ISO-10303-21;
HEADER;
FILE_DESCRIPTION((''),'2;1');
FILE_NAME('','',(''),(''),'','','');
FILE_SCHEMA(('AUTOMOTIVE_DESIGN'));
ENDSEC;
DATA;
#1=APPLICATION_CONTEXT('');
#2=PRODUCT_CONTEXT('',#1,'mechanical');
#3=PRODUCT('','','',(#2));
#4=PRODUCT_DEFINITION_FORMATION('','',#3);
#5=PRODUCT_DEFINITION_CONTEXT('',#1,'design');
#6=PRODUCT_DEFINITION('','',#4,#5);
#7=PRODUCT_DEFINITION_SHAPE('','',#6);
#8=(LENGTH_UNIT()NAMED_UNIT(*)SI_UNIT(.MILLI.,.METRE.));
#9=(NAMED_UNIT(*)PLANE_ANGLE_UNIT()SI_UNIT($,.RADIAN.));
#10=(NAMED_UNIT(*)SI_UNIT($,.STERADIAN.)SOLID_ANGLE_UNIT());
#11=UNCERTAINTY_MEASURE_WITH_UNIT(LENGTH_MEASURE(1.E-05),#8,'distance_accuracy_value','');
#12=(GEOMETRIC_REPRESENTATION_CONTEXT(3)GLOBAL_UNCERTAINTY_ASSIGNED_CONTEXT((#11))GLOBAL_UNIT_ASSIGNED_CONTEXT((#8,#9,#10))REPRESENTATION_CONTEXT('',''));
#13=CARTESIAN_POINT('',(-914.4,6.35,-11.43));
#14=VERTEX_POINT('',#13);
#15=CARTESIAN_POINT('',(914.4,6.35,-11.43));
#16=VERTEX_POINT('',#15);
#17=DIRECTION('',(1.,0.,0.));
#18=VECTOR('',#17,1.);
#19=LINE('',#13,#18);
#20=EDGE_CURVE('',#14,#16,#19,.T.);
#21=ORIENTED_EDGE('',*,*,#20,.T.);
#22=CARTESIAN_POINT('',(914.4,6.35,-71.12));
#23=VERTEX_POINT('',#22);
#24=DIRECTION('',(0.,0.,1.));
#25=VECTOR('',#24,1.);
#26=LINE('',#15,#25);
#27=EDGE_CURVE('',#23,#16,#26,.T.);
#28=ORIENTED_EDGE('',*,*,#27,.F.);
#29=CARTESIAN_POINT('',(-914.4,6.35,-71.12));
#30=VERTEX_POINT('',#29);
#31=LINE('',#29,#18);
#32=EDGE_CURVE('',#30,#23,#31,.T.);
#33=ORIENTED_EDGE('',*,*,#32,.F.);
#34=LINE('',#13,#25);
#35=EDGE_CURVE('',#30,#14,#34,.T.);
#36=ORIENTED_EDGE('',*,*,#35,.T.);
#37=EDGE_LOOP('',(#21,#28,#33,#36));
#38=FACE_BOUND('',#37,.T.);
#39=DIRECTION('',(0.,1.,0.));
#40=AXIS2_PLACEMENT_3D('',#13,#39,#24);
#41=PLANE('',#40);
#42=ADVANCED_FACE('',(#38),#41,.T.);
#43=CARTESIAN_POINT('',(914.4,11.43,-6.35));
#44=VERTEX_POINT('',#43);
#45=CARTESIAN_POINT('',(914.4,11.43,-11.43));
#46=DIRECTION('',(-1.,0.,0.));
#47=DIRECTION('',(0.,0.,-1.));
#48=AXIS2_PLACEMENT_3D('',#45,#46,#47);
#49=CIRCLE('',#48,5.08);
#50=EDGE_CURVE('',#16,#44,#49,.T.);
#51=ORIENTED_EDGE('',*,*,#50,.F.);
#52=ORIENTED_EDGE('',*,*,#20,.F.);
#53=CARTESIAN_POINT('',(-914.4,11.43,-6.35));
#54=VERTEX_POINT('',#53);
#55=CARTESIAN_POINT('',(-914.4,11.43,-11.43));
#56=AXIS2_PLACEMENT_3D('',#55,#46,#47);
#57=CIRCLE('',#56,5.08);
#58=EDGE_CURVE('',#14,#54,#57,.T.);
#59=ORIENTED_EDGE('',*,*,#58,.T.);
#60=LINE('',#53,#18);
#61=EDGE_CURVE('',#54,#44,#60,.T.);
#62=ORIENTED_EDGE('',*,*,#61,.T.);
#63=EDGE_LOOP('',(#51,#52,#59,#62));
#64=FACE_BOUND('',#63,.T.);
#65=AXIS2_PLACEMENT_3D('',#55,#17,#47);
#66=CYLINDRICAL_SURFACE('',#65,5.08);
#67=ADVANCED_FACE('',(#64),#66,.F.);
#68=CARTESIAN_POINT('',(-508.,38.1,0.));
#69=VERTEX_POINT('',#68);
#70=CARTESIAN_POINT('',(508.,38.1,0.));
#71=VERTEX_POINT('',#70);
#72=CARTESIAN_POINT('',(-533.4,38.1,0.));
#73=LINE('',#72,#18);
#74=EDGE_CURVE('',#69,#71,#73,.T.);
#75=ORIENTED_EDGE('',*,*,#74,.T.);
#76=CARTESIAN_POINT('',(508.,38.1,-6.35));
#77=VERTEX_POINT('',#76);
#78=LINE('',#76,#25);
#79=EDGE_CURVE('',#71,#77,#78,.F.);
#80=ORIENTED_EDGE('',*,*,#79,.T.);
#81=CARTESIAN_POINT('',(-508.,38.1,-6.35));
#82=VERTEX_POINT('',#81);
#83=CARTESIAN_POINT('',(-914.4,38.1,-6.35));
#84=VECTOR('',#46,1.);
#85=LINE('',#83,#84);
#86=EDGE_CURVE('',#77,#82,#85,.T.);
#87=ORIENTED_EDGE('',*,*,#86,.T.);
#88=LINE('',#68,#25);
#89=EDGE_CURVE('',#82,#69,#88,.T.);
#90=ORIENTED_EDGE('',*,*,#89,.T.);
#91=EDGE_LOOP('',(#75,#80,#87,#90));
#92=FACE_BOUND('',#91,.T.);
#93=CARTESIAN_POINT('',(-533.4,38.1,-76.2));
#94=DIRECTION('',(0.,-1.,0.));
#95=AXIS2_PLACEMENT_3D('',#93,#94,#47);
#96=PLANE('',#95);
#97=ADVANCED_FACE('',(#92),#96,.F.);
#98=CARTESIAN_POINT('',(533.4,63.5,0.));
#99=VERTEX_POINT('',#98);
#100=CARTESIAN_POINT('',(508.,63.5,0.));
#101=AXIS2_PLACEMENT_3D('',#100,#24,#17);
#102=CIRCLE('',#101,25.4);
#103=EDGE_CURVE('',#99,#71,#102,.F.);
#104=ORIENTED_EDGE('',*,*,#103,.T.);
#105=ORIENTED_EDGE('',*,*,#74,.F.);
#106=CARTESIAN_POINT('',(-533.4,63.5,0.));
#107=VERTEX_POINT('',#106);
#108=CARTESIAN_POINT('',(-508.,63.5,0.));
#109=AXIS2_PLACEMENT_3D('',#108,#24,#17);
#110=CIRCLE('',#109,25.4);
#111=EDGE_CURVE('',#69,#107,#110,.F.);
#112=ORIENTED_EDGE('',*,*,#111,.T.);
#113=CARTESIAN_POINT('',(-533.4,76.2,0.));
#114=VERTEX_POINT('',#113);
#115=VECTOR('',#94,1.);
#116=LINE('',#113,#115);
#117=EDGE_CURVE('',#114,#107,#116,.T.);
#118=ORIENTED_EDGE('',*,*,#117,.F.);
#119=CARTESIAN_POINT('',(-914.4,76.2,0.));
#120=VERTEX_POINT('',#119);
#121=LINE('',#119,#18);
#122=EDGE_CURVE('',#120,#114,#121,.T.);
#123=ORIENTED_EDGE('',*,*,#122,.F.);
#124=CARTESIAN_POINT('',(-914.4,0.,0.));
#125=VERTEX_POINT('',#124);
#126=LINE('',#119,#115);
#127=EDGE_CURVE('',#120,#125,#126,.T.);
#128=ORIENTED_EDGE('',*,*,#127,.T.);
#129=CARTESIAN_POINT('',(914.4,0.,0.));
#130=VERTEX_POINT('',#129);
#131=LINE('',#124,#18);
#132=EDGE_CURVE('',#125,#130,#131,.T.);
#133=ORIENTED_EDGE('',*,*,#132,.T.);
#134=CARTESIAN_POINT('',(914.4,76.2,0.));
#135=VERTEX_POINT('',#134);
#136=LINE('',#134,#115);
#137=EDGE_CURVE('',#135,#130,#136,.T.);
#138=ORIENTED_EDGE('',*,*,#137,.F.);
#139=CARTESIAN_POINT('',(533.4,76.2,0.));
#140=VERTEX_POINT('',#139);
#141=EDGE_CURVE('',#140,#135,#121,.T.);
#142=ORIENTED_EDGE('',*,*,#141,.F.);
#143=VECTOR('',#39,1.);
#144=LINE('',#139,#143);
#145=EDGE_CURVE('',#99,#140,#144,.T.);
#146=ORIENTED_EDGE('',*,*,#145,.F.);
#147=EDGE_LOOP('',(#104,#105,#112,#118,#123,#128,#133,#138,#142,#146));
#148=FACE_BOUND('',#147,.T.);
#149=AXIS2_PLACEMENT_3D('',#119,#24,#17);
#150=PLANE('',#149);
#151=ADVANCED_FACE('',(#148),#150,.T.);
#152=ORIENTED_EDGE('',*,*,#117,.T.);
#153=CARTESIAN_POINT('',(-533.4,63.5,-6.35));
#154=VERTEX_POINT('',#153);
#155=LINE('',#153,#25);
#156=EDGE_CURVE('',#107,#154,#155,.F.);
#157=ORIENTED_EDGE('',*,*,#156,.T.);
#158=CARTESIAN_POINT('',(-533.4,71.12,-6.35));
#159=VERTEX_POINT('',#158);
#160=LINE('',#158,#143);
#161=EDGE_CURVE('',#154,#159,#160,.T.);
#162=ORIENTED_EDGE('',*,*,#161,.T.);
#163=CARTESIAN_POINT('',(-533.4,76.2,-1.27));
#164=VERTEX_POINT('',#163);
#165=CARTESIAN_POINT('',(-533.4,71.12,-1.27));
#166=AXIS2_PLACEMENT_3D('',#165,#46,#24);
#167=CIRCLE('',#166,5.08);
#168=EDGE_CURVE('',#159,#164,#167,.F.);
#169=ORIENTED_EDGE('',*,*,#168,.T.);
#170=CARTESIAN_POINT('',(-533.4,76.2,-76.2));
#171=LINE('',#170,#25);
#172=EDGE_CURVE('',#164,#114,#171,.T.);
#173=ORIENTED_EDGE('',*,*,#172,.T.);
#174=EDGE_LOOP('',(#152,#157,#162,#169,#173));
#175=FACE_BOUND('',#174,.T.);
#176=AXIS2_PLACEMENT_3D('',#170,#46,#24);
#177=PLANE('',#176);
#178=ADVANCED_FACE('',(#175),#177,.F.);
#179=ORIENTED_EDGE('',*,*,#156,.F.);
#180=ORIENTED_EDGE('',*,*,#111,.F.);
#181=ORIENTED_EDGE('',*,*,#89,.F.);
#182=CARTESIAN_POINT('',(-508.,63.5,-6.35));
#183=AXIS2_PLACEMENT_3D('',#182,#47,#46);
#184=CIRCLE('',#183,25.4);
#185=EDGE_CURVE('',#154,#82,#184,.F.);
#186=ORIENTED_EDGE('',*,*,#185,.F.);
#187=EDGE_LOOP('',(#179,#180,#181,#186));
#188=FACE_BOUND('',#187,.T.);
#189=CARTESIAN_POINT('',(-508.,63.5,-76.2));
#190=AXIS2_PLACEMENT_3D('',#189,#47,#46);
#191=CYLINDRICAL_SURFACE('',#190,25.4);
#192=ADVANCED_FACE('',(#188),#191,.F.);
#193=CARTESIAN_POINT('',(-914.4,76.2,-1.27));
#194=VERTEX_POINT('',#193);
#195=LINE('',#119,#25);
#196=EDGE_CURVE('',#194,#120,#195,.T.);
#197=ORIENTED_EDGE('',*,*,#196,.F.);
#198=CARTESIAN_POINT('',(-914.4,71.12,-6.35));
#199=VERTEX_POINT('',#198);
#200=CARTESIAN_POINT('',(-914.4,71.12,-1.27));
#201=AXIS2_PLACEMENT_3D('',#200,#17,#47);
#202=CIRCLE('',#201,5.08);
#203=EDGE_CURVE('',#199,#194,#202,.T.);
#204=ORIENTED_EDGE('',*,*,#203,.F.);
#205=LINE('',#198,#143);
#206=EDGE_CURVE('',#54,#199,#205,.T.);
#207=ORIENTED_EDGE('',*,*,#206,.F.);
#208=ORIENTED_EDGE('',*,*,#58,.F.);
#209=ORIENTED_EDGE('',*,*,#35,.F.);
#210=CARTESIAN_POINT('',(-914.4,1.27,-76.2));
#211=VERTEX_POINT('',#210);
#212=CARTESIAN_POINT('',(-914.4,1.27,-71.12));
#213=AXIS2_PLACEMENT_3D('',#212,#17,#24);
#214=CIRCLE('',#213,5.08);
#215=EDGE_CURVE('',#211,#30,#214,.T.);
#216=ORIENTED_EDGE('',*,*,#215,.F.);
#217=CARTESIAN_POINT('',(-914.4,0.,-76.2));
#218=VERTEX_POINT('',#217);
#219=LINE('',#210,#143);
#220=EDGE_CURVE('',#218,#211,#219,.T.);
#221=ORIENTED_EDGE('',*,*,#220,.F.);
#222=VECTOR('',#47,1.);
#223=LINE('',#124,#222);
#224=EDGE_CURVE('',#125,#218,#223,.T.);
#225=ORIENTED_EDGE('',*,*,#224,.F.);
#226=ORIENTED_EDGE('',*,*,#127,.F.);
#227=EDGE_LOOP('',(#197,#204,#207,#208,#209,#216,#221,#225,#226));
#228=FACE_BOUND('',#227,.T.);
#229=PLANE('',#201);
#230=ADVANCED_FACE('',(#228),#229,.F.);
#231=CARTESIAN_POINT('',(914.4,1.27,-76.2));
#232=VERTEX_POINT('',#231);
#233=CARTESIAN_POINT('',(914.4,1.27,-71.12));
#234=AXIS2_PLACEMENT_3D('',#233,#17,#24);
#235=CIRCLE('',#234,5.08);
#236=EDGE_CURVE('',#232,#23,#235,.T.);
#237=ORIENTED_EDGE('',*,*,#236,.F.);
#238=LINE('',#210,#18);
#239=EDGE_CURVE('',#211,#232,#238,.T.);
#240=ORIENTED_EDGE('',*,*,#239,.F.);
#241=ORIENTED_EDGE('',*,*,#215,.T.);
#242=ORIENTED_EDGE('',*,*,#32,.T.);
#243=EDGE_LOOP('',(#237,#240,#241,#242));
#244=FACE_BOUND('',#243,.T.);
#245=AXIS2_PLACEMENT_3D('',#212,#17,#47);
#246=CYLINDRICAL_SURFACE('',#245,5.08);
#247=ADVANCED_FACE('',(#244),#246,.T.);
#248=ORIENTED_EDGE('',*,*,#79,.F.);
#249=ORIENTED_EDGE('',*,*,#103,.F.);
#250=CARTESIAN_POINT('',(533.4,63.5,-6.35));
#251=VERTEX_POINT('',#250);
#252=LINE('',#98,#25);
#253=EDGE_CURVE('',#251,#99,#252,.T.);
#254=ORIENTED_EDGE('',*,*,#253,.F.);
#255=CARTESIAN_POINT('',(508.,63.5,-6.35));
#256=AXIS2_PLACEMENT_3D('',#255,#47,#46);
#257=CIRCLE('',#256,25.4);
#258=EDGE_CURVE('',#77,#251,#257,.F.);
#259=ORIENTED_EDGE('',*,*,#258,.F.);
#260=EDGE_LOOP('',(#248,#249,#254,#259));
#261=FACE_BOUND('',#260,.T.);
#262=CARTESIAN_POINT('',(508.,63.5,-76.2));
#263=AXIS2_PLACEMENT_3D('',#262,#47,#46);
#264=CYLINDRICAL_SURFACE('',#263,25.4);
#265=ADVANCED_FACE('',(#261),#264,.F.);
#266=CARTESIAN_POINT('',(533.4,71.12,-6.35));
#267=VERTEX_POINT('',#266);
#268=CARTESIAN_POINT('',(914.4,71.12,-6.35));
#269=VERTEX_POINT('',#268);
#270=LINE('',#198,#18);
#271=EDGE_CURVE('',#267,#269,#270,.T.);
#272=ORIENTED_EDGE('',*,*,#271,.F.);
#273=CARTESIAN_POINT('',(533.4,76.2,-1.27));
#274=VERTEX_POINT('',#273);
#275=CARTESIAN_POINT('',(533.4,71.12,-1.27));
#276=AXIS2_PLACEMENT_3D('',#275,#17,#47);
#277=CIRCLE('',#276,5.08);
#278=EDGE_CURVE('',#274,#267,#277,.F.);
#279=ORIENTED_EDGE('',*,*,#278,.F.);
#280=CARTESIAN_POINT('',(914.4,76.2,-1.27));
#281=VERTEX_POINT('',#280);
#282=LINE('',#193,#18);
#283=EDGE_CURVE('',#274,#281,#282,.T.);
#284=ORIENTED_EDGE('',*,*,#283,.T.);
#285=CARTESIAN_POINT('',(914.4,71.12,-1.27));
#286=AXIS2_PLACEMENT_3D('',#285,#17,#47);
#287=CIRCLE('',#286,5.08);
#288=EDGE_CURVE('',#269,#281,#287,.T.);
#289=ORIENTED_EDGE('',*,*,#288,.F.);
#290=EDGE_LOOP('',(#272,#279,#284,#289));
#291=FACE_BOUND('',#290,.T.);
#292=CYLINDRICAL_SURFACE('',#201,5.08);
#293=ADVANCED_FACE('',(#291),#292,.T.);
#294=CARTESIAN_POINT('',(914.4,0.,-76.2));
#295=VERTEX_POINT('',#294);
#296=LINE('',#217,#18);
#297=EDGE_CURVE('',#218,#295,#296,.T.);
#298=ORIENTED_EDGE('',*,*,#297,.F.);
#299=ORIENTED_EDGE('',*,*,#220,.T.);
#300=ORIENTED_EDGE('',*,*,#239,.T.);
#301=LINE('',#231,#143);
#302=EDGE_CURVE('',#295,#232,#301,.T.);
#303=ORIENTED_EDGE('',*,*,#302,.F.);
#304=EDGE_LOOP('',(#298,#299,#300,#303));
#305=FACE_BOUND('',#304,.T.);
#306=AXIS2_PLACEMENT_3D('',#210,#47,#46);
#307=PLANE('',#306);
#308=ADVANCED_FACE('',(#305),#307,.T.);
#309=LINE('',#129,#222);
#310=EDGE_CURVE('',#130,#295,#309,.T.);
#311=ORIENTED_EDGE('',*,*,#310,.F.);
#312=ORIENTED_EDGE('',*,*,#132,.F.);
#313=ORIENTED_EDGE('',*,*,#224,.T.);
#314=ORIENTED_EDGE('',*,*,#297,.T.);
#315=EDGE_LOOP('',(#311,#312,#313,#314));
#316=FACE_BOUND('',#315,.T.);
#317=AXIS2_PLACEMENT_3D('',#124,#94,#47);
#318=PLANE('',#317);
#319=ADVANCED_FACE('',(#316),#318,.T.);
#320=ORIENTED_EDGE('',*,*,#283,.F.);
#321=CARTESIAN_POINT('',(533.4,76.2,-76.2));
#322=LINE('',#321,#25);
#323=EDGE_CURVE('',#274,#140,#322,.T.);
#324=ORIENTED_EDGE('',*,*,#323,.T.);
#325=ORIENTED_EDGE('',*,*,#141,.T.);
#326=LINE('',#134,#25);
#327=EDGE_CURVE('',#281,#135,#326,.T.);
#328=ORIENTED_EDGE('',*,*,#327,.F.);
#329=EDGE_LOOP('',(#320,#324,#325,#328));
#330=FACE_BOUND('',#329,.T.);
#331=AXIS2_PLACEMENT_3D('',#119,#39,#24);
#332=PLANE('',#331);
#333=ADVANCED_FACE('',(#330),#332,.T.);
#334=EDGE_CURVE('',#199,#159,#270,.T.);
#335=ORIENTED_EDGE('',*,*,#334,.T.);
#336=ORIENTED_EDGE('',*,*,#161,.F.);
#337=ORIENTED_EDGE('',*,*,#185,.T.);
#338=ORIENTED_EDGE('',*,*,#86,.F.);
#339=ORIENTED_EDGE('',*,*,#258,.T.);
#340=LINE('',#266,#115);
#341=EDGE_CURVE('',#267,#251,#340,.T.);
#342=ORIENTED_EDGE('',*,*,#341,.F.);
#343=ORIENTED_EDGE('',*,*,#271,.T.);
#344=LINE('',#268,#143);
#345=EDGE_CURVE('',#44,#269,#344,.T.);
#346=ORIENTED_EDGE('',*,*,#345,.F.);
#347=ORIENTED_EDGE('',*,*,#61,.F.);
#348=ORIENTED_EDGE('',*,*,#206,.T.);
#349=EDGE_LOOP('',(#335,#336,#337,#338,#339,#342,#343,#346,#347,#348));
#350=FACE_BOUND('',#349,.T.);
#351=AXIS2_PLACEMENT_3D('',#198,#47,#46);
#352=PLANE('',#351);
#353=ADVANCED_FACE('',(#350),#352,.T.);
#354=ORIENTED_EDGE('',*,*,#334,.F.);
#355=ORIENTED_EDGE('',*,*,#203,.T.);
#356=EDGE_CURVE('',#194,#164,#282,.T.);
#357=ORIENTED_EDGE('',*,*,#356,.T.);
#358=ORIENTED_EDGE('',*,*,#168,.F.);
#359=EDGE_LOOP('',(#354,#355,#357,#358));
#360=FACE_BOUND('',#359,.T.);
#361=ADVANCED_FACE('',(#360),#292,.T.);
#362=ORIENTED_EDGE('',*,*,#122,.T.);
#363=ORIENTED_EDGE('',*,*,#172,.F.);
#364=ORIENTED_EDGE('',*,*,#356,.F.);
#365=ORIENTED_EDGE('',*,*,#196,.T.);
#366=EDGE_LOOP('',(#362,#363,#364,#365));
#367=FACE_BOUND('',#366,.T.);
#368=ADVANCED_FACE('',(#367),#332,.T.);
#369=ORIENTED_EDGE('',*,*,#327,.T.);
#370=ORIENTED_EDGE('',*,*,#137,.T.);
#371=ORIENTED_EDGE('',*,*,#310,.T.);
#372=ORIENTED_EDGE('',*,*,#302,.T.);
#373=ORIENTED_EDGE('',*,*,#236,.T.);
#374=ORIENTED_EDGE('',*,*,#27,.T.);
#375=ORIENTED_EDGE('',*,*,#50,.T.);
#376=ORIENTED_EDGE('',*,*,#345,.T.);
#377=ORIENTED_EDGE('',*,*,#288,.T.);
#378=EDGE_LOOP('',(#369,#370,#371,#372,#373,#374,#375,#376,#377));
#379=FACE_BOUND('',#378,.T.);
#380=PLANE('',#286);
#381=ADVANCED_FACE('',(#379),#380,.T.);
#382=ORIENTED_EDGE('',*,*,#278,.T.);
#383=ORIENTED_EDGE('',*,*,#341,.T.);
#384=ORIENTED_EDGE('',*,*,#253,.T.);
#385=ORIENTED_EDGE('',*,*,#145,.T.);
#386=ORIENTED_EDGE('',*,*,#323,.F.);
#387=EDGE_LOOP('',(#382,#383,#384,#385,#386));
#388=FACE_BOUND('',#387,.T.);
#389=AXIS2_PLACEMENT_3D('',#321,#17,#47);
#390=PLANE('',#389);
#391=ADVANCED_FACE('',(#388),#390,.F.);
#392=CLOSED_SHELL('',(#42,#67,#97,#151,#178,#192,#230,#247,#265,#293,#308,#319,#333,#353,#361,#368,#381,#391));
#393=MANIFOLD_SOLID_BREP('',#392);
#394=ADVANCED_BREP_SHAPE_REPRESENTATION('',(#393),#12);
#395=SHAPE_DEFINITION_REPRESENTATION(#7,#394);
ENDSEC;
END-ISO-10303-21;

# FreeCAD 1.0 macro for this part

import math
import FreeCAD as App
import Part
import Sketcher
Q = App.Units.Quantity


def edges_at(feature, points):
    """Names of the edges that pass closest to the given points."""
    edges = feature.Shape.Edges
    near = lambda p: min(range(len(edges)), key=lambda i: edges[i].distToShape(Part.Vertex(*p))[0])
    return sorted({f"Edge{near(p) + 1}" for p in points})


def add_polygon(sketch, points):
    """Adds a closed chain of lines whose ends are joined by coincident constraints."""
    first, n = sketch.GeometryCount, len(points)
    for a, b in zip(points, points[1:] + points[:1]):
        sketch.addGeometry(Part.LineSegment(App.Vector(*a, 0), App.Vector(*b, 0)), False)
    for i in range(n):
        sketch.addConstraint(Sketcher.Constraint("Coincident", first + i, 2, first + (i + 1) % n, 1))

doc = App.newDocument("Part")
params = doc.addObject("Spreadsheet::Sheet", "Params")
for row, (alias, value) in enumerate([
    ("sketch1_radius", "0.2 in"),
    ("sketch1_width", "3 in"),
    ("sketch1_width2", "0.05 in"),
    ("pad1_length", "36 in"),
    ("pad1_length2", "36 in"),
    ("sketch2_width", "42 in"),
    ("sketch2_height", "1.5 in"),
    ("fillet_radius", "1 in"),
], start=1):
    params.set(f"A{row}", alias)
    params.set(f"B{row}", "=" + value)
    params.setAlias(f"B{row}", alias)

body = doc.addObject("PartDesign::Body", "Body")

# Sketch on YZ plane
sketch1 = doc.addObject("Sketcher::SketchObject", "Sketch")
body.addObject(sketch1)
sketch1.AttachmentSupport = (doc.YZ_Plane, [""])
sketch1.MapMode = "FlatFace"
sketch1.addGeometry(Part.LineSegment(App.Vector(76.2, 0, 0), App.Vector(0, 0, 0)), False)
sketch1.addGeometry(Part.LineSegment(App.Vector(0, 0, 0), App.Vector(0, -76.2, 0)), False)
sketch1.addGeometry(Part.LineSegment(App.Vector(0, -76.2, 0), App.Vector(1.3, -76.2, 0)), False)
sketch1.addGeometry(Part.ArcOfCircle(Part.Circle(App.Vector(1.3, -71.1, 0), App.Vector(0, 0, 1), 5.1), math.radians(-90), math.radians(0)), False)
sketch1.addGeometry(Part.LineSegment(App.Vector(6.3, -71.1, 0), App.Vector(6.3, -11.4, 0)), False)
sketch1.addGeometry(Part.ArcOfCircle(Part.Circle(App.Vector(11.4, -11.4, 0), App.Vector(0, 0, 1), 5.1), math.radians(90), math.radians(180)), False)
sketch1.addGeometry(Part.LineSegment(App.Vector(11.4, -6.3, 0), App.Vector(71.1, -6.3, 0)), False)
sketch1.addGeometry(Part.ArcOfCircle(Part.Circle(App.Vector(71.1, -1.3, 0), App.Vector(0, 0, 1), 5.1), math.radians(-90), math.radians(0)), False)
sketch1.addGeometry(Part.LineSegment(App.Vector(76.2, -1.3, 0), App.Vector(76.2, 0, 0)), False)
sketch1.addConstraint(Sketcher.Constraint("Coincident", 0, 2, 1, 1))
sketch1.addConstraint(Sketcher.Constraint("Coincident", 1, 2, 2, 1))
sketch1.addConstraint(Sketcher.Constraint("Tangent", 2, 2, 3, 1))
sketch1.addConstraint(Sketcher.Constraint("Tangent", 3, 2, 4, 1))
sketch1.addConstraint(Sketcher.Constraint("Tangent", 4, 2, 5, 2))
sketch1.addConstraint(Sketcher.Constraint("Tangent", 5, 1, 6, 1))
sketch1.addConstraint(Sketcher.Constraint("Tangent", 6, 2, 7, 1))
sketch1.addConstraint(Sketcher.Constraint("Tangent", 7, 2, 8, 1))
sketch1.addConstraint(Sketcher.Constraint("Coincident", 8, 2, 0, 1))
sketch1.addConstraint(Sketcher.Constraint("Horizontal", 0))
sketch1.addConstraint(Sketcher.Constraint("Vertical", 1))
sketch1.addConstraint(Sketcher.Constraint("Horizontal", 2))
sketch1.addConstraint(Sketcher.Constraint("Vertical", 4))
sketch1.addConstraint(Sketcher.Constraint("Horizontal", 6))
sketch1.addConstraint(Sketcher.Constraint("Vertical", 8))
sketch1.addConstraint(Sketcher.Constraint("Coincident", 0, 2, -1, 1))
sketch1.addConstraint(Sketcher.Constraint("Equal", 3, 5))
sketch1.addConstraint(Sketcher.Constraint("Equal", 5, 7))
sketch1.addConstraint(Sketcher.Constraint("Equal", 0, 1))
sketch1.addConstraint(Sketcher.Constraint("Equal", 6, 4))
sketch1.addConstraint(Sketcher.Constraint("Radius", 3, Q("0.2 in")))
sketch1.addConstraint(Sketcher.Constraint("DistanceX", 0, 2, 0, 1, Q("3 in")))
sketch1.addConstraint(Sketcher.Constraint("DistanceX", 2, 1, 2, 2, Q("0.05 in")))
sketch1.setExpression("Constraints[20]", "Params.sketch1_radius")
sketch1.setExpression("Constraints[21]", "Params.sketch1_width")
sketch1.setExpression("Constraints[22]", "Params.sketch1_width2")
pad1 = doc.addObject("PartDesign::Pad", "Pad")
body.addObject(pad1)
pad1.Profile = sketch1
pad1.Type = "TwoLengths"
pad1.setExpression("Length", "Params.pad1_length")
pad1.setExpression("Length2", "Params.pad1_length2")

# Sketch on XY plane
sketch2 = doc.addObject("Sketcher::SketchObject", "Sketch001")
body.addObject(sketch2)
sketch2.AttachmentSupport = (doc.XY_Plane, [""])
sketch2.MapMode = "FlatFace"
add_polygon(sketch2, [(-533, 76), (-533, 38), (533, 38), (533, 76)])  # lines 0-3
sketch2.addConstraint(Sketcher.Constraint("Vertical", 0))
sketch2.addConstraint(Sketcher.Constraint("Horizontal", 1))
sketch2.addConstraint(Sketcher.Constraint("Vertical", 2))
sketch2.addConstraint(Sketcher.Constraint("Horizontal", 3))
sketch2.addConstraint(Sketcher.Constraint("DistanceX", 1, 1, 1, 2, Q("42 in")))
sketch2.addConstraint(Sketcher.Constraint("DistanceY", 0, 2, 0, 1, Q("1.5 in")))
sketch2.addConstraint(Sketcher.Constraint("DistanceX", 0, 2, -1, 1, Q("21 in")))
sketch2.addConstraint(Sketcher.Constraint("DistanceY", -1, 1, 2, 2, Q("3 in")))
sketch2.setExpression("Constraints[8]", "Params.sketch2_width")
sketch2.setExpression("Constraints[9]", "Params.sketch2_height")
pocket1 = doc.addObject("PartDesign::Pocket", "Pocket")
body.addObject(pocket1)
pocket1.Profile = sketch2
pocket1.Type = "ThroughAll"
doc.recompute()

fillet = doc.addObject("PartDesign::Fillet", "Fillet")
body.addObject(fillet)
fillet.Base = (pocket1, edges_at(pocket1, [(-533.4, 38.1, -3.175), (533.4, 38.1, -3.175)]))
fillet.setExpression("Radius", "Params.fillet_radius")

doc.recompute()
